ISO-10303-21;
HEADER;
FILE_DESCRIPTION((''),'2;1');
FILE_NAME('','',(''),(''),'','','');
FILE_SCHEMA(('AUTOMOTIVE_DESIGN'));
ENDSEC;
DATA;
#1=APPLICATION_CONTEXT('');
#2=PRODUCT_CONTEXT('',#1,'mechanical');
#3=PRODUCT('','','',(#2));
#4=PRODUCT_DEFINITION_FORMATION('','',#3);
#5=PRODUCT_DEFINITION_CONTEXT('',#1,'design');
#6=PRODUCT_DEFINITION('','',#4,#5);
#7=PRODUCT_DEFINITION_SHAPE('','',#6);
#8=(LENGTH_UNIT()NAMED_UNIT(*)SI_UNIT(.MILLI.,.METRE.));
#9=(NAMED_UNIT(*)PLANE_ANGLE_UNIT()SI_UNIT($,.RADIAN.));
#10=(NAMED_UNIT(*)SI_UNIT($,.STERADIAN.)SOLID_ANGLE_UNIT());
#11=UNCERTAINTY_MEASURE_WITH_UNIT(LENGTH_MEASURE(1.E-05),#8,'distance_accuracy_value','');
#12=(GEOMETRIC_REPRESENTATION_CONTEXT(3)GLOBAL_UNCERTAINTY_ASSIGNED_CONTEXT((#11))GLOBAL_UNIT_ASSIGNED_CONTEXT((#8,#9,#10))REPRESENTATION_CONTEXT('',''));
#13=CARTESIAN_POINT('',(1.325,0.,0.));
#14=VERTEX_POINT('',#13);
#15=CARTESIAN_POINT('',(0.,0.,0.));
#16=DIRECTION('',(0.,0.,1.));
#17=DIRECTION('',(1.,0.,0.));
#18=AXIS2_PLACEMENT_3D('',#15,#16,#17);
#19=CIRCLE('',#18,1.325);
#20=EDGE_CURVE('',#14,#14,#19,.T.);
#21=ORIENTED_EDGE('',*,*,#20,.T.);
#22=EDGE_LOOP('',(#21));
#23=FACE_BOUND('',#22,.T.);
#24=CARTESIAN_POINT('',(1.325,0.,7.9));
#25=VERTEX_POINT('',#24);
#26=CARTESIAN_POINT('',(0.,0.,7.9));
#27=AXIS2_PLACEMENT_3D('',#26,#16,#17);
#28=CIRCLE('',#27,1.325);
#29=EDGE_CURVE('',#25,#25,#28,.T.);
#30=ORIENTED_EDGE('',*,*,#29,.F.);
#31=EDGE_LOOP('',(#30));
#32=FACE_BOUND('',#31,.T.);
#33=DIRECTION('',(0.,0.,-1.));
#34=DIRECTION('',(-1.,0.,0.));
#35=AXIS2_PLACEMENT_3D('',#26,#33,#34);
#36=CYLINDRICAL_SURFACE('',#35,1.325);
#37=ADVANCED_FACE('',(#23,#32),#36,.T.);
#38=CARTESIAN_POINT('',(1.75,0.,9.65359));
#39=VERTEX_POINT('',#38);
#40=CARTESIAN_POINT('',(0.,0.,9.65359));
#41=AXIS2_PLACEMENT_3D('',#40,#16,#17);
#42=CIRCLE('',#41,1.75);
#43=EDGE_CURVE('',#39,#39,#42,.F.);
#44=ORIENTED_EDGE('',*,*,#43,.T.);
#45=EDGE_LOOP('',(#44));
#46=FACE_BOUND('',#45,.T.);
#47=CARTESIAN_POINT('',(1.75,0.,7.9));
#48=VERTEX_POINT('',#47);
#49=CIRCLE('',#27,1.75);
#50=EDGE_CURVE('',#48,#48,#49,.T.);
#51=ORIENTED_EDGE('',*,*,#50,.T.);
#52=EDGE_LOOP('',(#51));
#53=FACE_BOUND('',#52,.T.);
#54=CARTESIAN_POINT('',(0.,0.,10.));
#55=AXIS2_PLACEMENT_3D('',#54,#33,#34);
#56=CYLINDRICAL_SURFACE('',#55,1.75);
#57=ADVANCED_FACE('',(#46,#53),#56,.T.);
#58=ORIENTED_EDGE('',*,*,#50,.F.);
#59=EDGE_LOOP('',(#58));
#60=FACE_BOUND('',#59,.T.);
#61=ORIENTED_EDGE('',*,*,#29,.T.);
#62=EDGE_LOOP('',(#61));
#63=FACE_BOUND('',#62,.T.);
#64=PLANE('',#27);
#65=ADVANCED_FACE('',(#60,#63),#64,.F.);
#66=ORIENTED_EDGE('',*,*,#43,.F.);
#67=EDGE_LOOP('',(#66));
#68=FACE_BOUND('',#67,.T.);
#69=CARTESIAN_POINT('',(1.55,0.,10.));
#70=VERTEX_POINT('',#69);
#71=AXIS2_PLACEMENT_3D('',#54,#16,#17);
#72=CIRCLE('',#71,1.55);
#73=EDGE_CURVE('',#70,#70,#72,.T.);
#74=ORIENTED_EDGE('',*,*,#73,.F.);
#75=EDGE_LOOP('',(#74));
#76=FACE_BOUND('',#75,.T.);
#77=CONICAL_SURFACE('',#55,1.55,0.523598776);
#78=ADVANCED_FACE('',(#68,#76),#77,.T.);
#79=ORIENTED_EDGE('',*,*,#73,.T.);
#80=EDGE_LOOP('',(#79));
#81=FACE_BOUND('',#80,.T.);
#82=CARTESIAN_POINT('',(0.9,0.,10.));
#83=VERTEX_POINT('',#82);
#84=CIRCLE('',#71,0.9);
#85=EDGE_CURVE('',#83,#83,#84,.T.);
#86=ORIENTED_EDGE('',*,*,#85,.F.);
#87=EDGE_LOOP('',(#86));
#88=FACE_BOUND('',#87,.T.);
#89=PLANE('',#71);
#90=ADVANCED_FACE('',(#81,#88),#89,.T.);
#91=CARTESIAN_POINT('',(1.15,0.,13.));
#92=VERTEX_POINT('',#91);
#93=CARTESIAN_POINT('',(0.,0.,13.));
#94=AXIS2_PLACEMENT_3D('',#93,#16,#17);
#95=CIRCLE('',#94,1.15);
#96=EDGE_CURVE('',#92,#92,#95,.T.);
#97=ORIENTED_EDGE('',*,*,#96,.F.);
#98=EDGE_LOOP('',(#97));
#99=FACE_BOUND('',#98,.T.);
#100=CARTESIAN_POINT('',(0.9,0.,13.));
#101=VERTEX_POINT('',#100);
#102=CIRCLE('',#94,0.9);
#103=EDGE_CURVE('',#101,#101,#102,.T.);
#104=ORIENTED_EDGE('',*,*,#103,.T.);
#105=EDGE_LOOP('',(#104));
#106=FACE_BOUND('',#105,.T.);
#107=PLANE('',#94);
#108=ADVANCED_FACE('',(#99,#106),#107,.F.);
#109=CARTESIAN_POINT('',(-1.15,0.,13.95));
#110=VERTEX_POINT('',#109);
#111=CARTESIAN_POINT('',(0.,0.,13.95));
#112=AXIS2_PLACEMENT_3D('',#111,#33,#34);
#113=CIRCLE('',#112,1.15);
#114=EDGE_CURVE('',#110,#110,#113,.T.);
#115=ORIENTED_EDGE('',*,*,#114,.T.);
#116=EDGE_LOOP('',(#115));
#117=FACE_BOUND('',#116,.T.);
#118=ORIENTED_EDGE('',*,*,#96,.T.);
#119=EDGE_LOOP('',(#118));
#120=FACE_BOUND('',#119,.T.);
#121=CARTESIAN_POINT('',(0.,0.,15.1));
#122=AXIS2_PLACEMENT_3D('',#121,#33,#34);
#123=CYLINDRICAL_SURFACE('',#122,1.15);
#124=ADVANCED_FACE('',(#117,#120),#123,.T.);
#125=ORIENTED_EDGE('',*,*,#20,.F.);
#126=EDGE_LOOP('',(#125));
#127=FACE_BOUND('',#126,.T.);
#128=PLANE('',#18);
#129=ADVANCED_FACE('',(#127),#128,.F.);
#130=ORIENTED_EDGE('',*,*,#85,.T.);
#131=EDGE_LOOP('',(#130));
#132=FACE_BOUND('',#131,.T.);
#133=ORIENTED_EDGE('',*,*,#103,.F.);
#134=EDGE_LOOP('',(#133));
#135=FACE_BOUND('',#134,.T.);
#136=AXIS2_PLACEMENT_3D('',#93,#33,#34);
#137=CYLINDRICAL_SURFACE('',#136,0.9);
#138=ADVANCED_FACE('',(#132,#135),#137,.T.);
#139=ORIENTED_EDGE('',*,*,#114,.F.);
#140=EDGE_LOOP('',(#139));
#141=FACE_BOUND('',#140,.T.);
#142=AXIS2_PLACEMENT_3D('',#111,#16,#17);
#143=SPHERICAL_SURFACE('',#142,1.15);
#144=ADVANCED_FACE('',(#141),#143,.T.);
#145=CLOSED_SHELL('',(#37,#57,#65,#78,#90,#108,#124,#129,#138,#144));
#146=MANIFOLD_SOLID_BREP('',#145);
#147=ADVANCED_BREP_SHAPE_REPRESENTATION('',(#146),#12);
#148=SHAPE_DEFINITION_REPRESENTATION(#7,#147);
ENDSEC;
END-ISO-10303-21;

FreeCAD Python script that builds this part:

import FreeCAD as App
import Part
import Sketcher

V = App.Vector
Q = App.Units.Quantity


def edges_at(feature, points):
    """Names of the edges that pass closest to the given points."""
    edges = feature.Shape.Edges
    near = lambda p: min(range(len(edges)), key=lambda i: edges[i].distToShape(Part.Vertex(*p))[0])
    return sorted({f"Edge{near(p) + 1}" for p in points})

doc = App.newDocument("Part")
body = doc.addObject("PartDesign::Body", "Body")

sketch1 = body.newObject("Sketcher::SketchObject", "Sketch")
sketch1.AttachmentSupport = (doc.getObject("XY_Plane"), [""])
sketch1.MapMode = "FlatFace"
sketch1.addGeometry(Part.Circle(V(0, 0, 0), V(0, 0, 1), 1.3), False)
sketch1.addConstraint([
    Sketcher.Constraint("Coincident", 0, 3, -1, 1),
    Sketcher.Constraint("Diameter", 0, Q("2.65 mm")),
])
pad1 = body.newObject("PartDesign::Pad", "Pad")
pad1.Profile = sketch1
pad1.Length = 7.9

sketch2 = body.newObject("Sketcher::SketchObject", "Sketch001")
sketch2.AttachmentSupport = (doc.getObject("XY_Plane"), [""])
sketch2.MapMode = "FlatFace"
sketch2.AttachmentOffset = App.Placement(V(0, 0, 7.9), App.Rotation())
sketch2.addGeometry(Part.Circle(V(0, 0, 0), V(0, 0, 1), 1.8), False)
sketch2.addConstraint([
    Sketcher.Constraint("Coincident", 0, 3, -1, 1),
    Sketcher.Constraint("Diameter", 0, Q("3.5 mm")),
])
pad2 = body.newObject("PartDesign::Pad", "Pad001")
pad2.Profile = sketch2
pad2.Length = 2.1

sketch3 = body.newObject("Sketcher::SketchObject", "Sketch002")
sketch3.AttachmentSupport = (doc.getObject("XY_Plane"), [""])
sketch3.MapMode = "FlatFace"
sketch3.AttachmentOffset = App.Placement(V(0, 0, 10), App.Rotation())
sketch3.addGeometry(Part.Circle(V(0, 0, 0), V(0, 0, 1), 0.9), False)
sketch3.addConstraint([
    Sketcher.Constraint("Coincident", 0, 3, -1, 1),
    Sketcher.Constraint("Diameter", 0, Q("1.8 mm")),
])
pad3 = body.newObject("PartDesign::Pad", "Pad002")
pad3.Profile = sketch3
pad3.Length = 3

sketch4 = body.newObject("Sketcher::SketchObject", "Sketch003")
sketch4.AttachmentSupport = (doc.getObject("XY_Plane"), [""])
sketch4.MapMode = "FlatFace"
sketch4.AttachmentOffset = App.Placement(V(0, 0, 13), App.Rotation())
sketch4.addGeometry(Part.Circle(V(0, 0, 0), V(0, 0, 1), 1.1), False)
sketch4.addConstraint([
    Sketcher.Constraint("Coincident", 0, 3, -1, 1),
    Sketcher.Constraint("Diameter", 0, Q("2.3 mm")),
])
pad4 = body.newObject("PartDesign::Pad", "Pad003")
pad4.Profile = sketch4
pad4.Length = 2.1
doc.recompute()

fillet = body.newObject("PartDesign::Fillet", "Fillet")
fillet.Base = (pad4, edges_at(pad4, [(-1.15, 0, 15.1)]))
fillet.Radius = 1.15
doc.recompute()

chamfer = body.newObject("PartDesign::Chamfer", "Chamfer")
chamfer.Base = (fillet, edges_at(fillet, [(-1.75, 0, 10)]))
chamfer.ChamferType = "Two distances"
chamfer.Size = 0.2
chamfer.Size2 = 0.34641

doc.recompute()
